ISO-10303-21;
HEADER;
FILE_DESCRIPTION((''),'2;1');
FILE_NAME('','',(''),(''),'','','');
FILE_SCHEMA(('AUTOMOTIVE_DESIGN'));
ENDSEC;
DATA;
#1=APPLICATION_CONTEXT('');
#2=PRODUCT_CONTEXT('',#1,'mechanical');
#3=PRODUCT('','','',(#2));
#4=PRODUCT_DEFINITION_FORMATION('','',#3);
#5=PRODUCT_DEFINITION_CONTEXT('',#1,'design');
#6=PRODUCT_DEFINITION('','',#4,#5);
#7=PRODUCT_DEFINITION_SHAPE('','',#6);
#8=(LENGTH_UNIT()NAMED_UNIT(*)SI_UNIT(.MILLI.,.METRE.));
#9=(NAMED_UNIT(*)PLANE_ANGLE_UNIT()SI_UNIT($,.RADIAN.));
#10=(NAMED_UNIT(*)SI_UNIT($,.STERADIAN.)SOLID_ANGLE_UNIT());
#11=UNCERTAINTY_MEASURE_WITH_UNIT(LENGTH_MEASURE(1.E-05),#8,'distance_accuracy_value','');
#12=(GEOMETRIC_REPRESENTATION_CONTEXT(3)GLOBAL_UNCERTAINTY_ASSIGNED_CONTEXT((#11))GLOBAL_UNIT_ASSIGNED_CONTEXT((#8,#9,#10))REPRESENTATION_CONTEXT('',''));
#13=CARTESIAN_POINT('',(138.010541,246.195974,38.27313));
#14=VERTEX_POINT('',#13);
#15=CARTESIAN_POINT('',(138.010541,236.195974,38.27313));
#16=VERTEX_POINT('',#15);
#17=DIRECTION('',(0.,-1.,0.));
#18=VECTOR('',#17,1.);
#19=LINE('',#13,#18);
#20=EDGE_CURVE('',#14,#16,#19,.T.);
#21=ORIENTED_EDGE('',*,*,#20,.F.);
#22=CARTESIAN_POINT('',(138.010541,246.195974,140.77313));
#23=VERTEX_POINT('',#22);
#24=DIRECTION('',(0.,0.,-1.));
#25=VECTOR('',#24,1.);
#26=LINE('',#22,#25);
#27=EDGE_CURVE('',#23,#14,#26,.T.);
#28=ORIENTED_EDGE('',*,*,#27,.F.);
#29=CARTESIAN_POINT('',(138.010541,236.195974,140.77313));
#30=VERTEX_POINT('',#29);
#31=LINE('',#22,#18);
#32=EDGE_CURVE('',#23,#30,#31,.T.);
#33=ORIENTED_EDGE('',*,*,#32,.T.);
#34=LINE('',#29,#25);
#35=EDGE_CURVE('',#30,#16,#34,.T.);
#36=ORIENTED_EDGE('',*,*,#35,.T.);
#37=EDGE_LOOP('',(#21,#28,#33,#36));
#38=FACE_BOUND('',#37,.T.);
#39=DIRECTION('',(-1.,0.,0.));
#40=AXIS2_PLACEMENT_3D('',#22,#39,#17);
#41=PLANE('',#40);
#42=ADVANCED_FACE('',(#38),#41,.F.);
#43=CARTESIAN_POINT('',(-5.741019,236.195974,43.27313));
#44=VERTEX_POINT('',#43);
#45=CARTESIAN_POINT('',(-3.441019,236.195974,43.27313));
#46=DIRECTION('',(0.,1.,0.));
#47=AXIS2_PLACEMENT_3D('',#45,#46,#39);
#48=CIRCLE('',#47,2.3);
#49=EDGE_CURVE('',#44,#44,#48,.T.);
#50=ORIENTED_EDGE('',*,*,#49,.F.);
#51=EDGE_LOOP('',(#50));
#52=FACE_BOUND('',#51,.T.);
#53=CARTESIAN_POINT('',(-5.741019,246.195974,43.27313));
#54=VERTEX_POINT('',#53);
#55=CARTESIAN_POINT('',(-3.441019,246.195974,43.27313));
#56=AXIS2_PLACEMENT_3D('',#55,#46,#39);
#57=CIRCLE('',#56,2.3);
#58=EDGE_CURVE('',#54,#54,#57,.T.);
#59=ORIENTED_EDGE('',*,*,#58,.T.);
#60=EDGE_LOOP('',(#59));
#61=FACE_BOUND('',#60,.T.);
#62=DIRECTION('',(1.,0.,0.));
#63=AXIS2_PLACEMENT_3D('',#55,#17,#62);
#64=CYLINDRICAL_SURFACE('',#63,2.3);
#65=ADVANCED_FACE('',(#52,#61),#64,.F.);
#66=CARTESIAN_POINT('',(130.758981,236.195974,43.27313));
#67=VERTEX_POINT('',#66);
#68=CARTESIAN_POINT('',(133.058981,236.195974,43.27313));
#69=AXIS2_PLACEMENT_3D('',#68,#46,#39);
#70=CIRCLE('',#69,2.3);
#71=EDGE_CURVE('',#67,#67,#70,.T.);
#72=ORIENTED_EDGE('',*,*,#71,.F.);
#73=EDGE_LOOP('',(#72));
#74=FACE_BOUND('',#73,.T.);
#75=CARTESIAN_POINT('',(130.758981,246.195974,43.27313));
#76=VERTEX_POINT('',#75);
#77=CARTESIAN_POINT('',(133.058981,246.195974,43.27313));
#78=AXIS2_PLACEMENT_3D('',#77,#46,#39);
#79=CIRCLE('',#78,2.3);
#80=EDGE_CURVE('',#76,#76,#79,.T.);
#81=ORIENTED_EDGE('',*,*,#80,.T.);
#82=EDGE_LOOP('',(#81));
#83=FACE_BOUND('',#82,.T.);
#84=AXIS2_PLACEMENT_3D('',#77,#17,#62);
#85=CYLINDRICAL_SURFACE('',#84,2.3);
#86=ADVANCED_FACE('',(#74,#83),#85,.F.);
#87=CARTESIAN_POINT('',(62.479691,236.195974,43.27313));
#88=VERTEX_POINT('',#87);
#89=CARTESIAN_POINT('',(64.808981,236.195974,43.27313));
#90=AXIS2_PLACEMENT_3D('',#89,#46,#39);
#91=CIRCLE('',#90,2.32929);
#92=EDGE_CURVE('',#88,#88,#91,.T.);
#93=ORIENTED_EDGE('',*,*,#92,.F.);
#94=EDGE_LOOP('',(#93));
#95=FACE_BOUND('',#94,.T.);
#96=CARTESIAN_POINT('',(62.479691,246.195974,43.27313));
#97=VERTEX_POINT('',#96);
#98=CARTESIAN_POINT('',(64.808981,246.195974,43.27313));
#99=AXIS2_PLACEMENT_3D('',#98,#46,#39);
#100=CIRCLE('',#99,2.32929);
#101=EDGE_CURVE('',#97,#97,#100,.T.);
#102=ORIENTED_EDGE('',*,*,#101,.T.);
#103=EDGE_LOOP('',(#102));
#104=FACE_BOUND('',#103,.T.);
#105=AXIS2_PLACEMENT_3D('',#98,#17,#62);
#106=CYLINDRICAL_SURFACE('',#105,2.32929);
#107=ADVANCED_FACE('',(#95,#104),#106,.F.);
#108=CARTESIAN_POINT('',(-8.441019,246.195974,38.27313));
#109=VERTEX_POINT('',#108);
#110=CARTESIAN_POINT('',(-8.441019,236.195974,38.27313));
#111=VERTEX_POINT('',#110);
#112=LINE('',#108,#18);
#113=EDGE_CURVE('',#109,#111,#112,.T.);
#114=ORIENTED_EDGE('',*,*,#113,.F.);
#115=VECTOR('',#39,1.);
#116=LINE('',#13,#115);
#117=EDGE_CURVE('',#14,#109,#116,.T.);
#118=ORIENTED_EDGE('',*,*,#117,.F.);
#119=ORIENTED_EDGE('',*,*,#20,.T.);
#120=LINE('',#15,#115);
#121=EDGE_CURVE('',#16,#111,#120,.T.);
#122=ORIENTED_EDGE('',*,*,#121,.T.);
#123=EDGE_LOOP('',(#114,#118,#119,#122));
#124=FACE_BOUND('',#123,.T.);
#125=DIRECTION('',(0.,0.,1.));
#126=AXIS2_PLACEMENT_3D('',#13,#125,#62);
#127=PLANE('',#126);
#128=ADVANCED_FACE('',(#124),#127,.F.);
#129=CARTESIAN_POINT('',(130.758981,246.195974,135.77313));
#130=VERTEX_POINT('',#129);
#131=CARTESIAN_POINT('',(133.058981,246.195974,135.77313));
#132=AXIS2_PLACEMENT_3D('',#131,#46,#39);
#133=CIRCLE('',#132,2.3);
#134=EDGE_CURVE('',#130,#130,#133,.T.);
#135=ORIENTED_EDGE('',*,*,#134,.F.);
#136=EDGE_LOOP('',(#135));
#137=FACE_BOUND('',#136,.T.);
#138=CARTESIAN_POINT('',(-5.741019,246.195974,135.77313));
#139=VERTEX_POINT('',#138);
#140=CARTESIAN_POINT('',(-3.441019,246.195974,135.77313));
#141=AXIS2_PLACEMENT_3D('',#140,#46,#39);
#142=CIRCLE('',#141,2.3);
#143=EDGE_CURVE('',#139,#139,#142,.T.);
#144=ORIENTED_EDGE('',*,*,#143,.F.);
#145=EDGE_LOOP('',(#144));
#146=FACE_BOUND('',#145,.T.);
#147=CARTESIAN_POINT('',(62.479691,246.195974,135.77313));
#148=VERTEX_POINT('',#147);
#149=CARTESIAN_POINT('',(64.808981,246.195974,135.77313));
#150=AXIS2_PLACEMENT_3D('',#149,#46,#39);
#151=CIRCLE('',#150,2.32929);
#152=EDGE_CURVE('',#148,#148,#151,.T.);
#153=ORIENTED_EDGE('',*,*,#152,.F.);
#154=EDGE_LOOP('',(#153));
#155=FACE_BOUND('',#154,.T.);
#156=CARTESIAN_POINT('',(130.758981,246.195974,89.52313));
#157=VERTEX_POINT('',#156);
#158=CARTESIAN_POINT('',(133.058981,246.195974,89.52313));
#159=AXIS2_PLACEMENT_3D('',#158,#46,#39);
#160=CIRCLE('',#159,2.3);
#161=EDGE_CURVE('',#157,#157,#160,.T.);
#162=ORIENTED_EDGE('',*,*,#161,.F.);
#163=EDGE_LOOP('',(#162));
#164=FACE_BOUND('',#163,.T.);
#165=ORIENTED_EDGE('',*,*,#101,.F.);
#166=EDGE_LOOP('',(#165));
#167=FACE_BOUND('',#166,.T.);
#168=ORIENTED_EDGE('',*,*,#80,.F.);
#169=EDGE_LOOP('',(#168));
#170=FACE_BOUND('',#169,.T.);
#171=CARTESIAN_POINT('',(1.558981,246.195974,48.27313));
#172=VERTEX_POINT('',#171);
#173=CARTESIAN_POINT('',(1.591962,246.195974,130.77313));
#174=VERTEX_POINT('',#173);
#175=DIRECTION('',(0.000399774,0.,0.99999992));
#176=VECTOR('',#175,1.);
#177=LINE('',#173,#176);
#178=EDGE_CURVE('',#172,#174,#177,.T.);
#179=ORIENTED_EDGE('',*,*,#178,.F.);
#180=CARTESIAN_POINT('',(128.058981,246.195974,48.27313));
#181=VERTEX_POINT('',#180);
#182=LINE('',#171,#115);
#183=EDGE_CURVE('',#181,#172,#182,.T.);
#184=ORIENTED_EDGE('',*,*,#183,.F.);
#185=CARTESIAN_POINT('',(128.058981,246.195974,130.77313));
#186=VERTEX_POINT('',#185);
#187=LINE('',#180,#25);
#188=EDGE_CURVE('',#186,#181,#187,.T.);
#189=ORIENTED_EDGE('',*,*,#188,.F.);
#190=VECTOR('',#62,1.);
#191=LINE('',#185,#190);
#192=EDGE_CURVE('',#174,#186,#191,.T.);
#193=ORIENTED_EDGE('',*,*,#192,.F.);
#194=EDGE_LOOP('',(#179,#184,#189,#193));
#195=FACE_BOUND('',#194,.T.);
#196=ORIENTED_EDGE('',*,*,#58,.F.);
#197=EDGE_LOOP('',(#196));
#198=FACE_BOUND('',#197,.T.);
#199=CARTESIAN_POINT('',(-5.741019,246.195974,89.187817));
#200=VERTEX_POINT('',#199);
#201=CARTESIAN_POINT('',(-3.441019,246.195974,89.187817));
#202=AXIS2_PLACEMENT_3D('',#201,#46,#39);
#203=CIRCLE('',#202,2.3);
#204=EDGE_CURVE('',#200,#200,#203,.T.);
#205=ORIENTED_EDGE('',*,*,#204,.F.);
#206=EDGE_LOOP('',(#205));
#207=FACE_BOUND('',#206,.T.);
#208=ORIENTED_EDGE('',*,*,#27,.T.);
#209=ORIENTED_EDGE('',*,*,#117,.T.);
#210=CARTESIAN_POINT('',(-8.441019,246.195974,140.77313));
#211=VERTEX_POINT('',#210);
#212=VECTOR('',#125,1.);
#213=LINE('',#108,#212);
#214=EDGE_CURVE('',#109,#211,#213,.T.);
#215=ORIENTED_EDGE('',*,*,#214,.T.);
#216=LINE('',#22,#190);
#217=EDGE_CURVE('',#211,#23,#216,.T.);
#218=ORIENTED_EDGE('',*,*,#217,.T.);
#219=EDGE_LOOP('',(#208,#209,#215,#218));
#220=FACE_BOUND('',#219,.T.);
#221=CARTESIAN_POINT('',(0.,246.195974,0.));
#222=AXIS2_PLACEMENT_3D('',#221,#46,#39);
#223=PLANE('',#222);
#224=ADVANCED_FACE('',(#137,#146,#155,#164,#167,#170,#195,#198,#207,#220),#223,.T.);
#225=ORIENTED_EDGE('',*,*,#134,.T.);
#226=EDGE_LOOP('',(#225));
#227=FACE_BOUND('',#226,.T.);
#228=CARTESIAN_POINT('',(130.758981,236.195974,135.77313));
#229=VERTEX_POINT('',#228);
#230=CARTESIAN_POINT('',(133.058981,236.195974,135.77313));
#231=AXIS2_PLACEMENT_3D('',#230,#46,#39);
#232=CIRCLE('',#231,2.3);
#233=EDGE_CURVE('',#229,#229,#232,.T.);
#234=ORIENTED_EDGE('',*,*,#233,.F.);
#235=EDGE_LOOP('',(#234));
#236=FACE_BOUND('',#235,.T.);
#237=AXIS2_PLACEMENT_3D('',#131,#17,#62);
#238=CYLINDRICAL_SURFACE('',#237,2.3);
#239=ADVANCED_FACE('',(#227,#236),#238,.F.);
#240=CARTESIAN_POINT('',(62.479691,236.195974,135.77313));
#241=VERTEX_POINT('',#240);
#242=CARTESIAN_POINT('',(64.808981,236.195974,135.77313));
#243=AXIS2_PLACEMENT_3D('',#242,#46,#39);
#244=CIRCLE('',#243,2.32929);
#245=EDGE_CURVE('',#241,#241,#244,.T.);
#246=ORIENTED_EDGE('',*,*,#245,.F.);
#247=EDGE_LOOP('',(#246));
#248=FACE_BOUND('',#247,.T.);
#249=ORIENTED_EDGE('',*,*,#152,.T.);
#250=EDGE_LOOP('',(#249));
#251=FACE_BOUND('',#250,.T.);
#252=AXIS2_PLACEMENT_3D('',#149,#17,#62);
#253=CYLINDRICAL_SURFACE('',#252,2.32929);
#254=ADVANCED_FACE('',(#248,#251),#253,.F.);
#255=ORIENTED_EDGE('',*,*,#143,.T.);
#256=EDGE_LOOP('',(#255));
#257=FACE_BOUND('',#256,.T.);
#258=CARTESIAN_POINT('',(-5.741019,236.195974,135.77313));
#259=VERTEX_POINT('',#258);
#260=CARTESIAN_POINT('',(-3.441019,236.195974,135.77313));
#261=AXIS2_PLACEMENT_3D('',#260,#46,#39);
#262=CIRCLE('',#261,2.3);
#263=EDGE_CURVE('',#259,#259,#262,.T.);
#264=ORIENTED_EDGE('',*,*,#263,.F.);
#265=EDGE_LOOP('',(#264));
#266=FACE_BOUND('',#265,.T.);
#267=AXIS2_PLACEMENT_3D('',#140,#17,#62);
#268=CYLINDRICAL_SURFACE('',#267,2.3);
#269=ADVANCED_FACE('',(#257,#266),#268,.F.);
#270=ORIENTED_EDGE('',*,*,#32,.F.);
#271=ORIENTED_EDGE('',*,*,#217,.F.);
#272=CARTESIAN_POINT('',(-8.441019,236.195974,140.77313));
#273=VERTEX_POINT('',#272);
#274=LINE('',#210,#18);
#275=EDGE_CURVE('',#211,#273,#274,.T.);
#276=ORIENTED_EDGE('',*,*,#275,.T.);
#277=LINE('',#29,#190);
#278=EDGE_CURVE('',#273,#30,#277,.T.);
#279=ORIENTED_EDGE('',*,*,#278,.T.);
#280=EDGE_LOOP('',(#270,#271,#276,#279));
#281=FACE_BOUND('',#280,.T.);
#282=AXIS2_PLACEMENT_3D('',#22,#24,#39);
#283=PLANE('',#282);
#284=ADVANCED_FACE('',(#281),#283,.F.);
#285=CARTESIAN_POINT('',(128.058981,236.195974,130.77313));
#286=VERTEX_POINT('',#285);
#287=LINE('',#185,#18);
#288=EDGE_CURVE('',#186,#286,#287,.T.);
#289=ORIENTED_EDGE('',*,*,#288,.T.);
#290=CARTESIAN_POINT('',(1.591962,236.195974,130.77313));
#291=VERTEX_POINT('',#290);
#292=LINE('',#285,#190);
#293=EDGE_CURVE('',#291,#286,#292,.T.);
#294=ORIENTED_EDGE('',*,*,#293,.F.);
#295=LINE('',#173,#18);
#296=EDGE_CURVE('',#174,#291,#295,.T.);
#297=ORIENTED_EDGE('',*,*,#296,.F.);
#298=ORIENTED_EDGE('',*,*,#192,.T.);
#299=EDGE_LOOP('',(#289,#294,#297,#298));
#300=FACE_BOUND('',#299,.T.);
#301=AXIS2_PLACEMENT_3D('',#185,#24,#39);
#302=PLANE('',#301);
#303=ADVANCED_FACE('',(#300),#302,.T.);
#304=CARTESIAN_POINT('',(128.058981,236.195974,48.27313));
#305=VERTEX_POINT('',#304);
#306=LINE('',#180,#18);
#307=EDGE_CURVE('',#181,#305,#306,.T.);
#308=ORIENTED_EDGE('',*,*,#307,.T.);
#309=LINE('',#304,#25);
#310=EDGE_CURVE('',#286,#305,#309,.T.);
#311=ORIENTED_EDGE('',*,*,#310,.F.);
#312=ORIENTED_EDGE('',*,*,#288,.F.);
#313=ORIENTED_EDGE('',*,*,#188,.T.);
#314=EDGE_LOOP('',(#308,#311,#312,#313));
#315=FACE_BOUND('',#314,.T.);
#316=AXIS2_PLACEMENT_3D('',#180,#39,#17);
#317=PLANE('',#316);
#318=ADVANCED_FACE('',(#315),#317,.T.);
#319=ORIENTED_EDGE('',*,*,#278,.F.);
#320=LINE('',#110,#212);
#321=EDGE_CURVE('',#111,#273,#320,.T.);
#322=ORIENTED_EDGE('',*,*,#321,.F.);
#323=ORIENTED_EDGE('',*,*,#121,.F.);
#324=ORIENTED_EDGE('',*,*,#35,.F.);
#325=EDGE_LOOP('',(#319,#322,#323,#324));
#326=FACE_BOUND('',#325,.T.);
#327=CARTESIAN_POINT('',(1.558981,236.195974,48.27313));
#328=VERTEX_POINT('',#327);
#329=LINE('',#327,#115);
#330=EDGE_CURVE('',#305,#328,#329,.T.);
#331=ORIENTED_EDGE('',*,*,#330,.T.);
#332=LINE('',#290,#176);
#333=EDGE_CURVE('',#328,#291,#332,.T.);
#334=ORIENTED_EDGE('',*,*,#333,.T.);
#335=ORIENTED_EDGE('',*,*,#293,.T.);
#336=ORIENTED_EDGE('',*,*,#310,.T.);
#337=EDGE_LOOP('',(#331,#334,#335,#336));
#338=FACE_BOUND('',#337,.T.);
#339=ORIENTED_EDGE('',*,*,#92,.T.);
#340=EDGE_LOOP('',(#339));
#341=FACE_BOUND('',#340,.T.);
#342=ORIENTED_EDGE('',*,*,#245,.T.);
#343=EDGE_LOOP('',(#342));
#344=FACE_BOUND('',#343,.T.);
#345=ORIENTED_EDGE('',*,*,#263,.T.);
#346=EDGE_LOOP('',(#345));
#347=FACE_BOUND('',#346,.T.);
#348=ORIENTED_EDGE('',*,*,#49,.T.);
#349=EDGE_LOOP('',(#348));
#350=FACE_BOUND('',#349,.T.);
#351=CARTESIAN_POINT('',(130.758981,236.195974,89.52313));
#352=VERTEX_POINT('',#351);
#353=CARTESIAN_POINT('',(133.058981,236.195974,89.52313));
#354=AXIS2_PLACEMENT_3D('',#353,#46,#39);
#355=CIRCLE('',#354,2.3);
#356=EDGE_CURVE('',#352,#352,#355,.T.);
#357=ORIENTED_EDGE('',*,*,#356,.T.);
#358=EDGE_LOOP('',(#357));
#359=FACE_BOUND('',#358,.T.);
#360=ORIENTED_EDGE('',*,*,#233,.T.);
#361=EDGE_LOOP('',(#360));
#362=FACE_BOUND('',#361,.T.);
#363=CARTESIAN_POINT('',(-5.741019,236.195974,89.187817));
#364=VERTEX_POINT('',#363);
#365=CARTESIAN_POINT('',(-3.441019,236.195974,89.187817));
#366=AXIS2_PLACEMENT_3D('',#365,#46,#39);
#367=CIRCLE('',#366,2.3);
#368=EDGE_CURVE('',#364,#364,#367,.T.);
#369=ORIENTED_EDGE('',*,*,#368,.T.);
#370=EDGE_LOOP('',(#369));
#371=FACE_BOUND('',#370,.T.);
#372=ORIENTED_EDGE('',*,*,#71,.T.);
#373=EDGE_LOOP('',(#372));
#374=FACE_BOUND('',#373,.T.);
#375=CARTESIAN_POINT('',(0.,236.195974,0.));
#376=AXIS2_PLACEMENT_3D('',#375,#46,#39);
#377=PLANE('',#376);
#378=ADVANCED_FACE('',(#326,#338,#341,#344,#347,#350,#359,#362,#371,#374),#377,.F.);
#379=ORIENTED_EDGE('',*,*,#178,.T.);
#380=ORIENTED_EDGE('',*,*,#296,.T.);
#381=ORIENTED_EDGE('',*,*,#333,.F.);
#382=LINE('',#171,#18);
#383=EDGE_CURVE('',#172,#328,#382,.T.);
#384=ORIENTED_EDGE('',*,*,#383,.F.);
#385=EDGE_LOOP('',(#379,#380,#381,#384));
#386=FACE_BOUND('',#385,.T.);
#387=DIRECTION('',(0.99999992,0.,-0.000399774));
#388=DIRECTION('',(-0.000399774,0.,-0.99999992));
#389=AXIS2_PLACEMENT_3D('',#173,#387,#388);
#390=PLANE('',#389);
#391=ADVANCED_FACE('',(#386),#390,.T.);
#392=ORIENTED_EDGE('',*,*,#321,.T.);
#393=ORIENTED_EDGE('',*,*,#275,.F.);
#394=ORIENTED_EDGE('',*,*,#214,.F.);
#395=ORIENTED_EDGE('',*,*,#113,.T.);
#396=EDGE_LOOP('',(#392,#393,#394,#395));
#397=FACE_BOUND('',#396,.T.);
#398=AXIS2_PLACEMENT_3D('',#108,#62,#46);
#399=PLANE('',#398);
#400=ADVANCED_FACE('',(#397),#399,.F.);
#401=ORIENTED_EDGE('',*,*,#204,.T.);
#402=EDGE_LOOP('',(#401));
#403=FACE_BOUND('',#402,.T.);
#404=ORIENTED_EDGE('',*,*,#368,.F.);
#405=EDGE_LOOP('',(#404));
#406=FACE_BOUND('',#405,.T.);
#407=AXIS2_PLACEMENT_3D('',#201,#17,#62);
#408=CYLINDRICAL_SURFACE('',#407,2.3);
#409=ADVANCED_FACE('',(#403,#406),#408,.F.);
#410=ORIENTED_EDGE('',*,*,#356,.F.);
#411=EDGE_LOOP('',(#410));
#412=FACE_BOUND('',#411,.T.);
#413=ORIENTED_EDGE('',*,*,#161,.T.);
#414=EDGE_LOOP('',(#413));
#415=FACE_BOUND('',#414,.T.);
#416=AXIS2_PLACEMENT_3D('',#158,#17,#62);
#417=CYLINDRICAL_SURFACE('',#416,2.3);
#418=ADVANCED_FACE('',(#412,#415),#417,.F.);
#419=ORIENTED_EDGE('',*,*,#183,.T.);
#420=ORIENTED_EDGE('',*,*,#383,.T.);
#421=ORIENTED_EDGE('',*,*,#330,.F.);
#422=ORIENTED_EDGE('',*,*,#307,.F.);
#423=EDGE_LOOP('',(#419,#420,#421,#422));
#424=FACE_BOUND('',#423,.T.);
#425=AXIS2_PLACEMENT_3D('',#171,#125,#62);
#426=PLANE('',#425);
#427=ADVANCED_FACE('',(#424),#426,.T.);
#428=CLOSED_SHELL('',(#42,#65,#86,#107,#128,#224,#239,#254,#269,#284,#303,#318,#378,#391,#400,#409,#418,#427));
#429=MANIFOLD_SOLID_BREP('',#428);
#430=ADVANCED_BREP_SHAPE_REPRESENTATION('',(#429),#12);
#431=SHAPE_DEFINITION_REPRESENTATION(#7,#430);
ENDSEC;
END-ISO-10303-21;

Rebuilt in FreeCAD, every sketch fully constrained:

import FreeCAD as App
import Part
import Sketcher
from FreeCAD import Vector


def add_polygon(sketch, points):
    """Adds a closed chain of lines whose ends are joined by coincident constraints."""
    first, n = sketch.GeometryCount, len(points)
    for a, b in zip(points, points[1:] + points[:1]):
        sketch.addGeometry(Part.LineSegment(App.Vector(*a, 0), App.Vector(*b, 0)), False)
    for i in range(n):
        sketch.addConstraint(Sketcher.Constraint("Coincident", first + i, 2, first + (i + 1) % n, 1))

doc = App.newDocument("Part")
body = doc.addObject("PartDesign::Body", "Body")

# Sketch on XZ plane
sketch1 = body.newObject("Sketcher::SketchObject", "Sketch")
sketch1.AttachmentSupport = (doc.getObject("XZ_Plane"), [""])
sketch1.MapMode = "FlatFace"
sketch1.AttachmentOffset = App.Placement(Vector(0, 0, -236.195974), App.Rotation())
add_polygon(sketch1, [(-8.4, 38.3), (-8.4, 140.8), (138, 140.8), (138, 38.3)])  # lines 0-3
sketch1.addGeometry(Part.Circle(Vector(-3.4, 135.8, 0), Vector(0, 0, 1), 2.3), False)  # 4
sketch1.addGeometry(Part.Circle(Vector(64.8, 135.8, 0), Vector(0, 0, 1), 2.3), False)  # 5
sketch1.addGeometry(Part.Circle(Vector(133.1, 135.8, 0), Vector(0, 0, 1), 2.3), False)  # 6
sketch1.addGeometry(Part.Circle(Vector(-3.4, 89.2, 0), Vector(0, 0, 1), 2.3), False)  # 7
sketch1.addGeometry(Part.Circle(Vector(-3.4, 43.3, 0), Vector(0, 0, 1), 2.3), False)  # 8
sketch1.addGeometry(Part.Circle(Vector(64.8, 43.3, 0), Vector(0, 0, 1), 2.3), False)  # 9
add_polygon(sketch1, [(128.1, 130.8), (1.6, 130.8), (1.6, 48.3), (128.1, 48.3)])  # lines 10-13
sketch1.addGeometry(Part.Circle(Vector(133.1, 89.5, 0), Vector(0, 0, 1), 2.3), False)  # 14
sketch1.addGeometry(Part.Circle(Vector(133.1, 43.3, 0), Vector(0, 0, 1), 2.3), False)  # 15
sketch1.addConstraint([
    Sketcher.Constraint("Vertical", 0),
    Sketcher.Constraint("Horizontal", 1),
    Sketcher.Constraint("Vertical", 2),
    Sketcher.Constraint("Horizontal", 3),
    Sketcher.Constraint("Horizontal", 10),
    Sketcher.Constraint("Horizontal", 12),
    Sketcher.Constraint("Vertical", 13),
    Sketcher.Constraint("Equal", 4, 6),
    Sketcher.Constraint("Equal", 6, 7),
    Sketcher.Constraint("Equal", 7, 8),
    Sketcher.Constraint("Equal", 5, 9),
    Sketcher.Constraint("Equal", 8, 14),
    Sketcher.Constraint("Equal", 14, 15),
    Sketcher.Constraint("Horizontal", 4, 3, 5, 3),
    Sketcher.Constraint("Horizontal", 5, 3, 6, 3),
    Sketcher.Constraint("Horizontal", 8, 3, 9, 3),
    Sketcher.Constraint("Horizontal", 9, 3, 15, 3),
    Sketcher.Constraint("Vertical", 4, 3, 7, 3),
    Sketcher.Constraint("Vertical", 7, 3, 8, 3),
    Sketcher.Constraint("Vertical", 5, 3, 9, 3),
    Sketcher.Constraint("Vertical", 6, 3, 14, 3),
    Sketcher.Constraint("Vertical", 14, 3, 15, 3),
    Sketcher.Constraint("Diameter", 4, 4.6),
    Sketcher.Constraint("DistanceX", 12, 1, 12, 2, 126.5),
    Sketcher.Constraint("DistanceY", 0, 1, 0, 2, 102.5),
    Sketcher.Constraint("DistanceY", 13, 1, 13, 2, 82.5),
    Sketcher.Constraint("DistanceX", 0, 2, 4, 3, 5.0),
    Sketcher.Constraint("DistanceY", 4, 3, 0, 2, 5.0),
    Sketcher.Constraint("DistanceY", 2, 2, 15, 3, 5.0),
    Sketcher.Constraint("DistanceY", 10, 2, 4, 3, 5.0),
    Sketcher.Constraint("DistanceX", 8, 3, 11, 2, 5.0),
    Sketcher.Constraint("DistanceX", 12, 2, 15, 3, 5.0),
    Sketcher.Constraint("Diameter", 5, 4.65858),
    Sketcher.Constraint("DistanceX", 4, 3, 5, 3, 68.25),
    Sketcher.Constraint("DistanceY", 14, 3, 6, 3, 46.25),
    Sketcher.Constraint("DistanceX", 1, 1, 1, 2, 146.451561),
    Sketcher.Constraint("DistanceX", 10, 2, 10, 1, 126.467019),
    Sketcher.Constraint("DistanceX", 4, 3, -1, 1, 3.441019),
    Sketcher.Constraint("DistanceY", -1, 1, 4, 3, 135.77313),
    Sketcher.Constraint("DistanceY", -1, 1, 7, 3, 89.187817),
])
pad1 = body.newObject("PartDesign::Pad", "Pad")
pad1.Profile = sketch1
pad1.Length = 10
pad1.Reversed = True

doc.recompute()
